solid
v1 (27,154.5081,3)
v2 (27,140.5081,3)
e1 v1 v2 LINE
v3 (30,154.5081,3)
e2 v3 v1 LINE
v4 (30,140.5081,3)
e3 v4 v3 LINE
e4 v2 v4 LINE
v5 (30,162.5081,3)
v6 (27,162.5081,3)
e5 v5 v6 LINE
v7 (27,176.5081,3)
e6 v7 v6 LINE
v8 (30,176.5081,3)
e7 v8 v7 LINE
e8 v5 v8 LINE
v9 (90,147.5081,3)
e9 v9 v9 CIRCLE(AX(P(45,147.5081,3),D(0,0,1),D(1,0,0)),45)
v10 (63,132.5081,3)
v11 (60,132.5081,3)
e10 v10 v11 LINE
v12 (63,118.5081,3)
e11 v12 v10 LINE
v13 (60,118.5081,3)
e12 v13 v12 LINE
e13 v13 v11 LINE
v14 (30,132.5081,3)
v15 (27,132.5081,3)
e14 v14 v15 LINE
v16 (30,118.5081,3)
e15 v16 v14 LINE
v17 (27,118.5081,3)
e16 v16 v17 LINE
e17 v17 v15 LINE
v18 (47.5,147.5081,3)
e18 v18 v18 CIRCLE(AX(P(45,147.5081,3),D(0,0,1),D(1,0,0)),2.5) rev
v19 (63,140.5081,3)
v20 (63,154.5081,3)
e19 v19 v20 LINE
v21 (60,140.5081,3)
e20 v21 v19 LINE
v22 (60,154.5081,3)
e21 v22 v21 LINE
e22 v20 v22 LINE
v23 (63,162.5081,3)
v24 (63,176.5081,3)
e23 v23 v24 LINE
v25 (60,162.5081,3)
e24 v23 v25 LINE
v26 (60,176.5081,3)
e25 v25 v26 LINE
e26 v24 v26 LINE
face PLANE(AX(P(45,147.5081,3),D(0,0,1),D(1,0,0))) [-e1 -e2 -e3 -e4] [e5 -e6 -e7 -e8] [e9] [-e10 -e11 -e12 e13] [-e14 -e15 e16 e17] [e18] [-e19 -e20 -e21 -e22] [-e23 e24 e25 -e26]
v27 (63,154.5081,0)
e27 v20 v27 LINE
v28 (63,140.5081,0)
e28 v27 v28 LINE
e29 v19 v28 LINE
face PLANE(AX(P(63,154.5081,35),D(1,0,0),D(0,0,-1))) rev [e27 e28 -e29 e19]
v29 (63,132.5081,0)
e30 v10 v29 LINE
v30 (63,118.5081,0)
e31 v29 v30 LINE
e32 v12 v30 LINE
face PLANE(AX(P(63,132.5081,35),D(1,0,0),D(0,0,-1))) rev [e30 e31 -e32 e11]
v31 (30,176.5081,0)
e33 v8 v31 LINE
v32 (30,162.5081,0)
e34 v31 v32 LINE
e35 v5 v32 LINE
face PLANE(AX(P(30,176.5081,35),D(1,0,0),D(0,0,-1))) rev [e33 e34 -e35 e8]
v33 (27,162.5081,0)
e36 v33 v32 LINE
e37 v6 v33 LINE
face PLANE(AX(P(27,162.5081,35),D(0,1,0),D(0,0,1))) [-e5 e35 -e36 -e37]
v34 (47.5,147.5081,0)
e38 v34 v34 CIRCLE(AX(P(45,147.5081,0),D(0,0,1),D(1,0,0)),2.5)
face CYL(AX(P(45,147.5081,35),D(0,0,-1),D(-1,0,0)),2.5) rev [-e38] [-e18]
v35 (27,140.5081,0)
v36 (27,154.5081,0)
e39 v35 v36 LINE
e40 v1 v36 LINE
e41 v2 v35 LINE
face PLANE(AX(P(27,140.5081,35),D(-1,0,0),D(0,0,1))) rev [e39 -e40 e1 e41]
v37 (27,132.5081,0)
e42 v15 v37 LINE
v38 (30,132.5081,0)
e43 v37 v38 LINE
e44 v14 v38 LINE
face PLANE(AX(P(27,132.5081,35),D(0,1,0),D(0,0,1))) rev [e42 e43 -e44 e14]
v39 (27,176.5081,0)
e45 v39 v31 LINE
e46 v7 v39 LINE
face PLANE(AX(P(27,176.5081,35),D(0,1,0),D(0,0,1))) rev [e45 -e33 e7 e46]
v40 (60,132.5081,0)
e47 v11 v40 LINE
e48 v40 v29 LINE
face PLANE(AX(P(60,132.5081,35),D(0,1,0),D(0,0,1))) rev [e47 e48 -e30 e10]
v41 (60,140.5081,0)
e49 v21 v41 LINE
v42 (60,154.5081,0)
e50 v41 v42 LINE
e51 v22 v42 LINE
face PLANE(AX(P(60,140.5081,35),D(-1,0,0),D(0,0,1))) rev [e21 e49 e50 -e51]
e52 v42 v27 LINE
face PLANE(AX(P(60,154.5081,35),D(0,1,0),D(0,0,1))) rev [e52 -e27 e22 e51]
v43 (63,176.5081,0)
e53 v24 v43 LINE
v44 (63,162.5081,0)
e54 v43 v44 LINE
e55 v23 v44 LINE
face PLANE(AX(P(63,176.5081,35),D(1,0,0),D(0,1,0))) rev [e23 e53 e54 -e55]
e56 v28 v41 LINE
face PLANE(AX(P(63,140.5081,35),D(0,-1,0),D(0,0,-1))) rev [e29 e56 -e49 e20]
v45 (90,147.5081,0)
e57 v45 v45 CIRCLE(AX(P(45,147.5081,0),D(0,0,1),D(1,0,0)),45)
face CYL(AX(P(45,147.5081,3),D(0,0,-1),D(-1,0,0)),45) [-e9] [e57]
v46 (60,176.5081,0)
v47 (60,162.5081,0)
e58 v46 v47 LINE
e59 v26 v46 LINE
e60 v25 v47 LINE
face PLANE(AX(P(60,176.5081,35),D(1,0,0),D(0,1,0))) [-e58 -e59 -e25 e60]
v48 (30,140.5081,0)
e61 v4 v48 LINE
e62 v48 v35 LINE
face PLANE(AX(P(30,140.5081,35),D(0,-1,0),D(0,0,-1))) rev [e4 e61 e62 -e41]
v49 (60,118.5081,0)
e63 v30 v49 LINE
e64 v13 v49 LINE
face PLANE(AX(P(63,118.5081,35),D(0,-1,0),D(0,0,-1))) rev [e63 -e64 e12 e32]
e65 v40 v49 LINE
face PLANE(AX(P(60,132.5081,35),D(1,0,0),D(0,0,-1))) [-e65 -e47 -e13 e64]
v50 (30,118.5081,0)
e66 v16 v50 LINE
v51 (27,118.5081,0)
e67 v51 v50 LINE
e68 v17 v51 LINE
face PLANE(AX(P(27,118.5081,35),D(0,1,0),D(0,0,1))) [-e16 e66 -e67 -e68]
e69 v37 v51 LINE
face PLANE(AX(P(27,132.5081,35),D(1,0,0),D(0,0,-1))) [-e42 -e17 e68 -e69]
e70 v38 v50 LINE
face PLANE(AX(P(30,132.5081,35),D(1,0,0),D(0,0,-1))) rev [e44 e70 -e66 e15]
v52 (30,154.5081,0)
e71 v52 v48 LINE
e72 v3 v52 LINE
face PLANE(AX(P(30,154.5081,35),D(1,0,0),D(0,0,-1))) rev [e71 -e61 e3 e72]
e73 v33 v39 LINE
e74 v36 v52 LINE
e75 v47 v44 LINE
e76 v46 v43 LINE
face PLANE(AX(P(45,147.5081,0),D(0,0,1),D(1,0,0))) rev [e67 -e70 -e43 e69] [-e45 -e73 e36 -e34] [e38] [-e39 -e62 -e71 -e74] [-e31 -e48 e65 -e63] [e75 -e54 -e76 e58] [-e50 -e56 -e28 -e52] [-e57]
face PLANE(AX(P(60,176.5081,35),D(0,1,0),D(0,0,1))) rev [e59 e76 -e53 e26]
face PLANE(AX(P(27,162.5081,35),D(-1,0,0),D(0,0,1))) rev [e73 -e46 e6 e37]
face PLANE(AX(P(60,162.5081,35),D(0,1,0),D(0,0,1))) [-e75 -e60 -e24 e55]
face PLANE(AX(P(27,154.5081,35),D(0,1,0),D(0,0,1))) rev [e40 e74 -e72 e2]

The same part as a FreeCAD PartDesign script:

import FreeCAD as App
import Part
import Sketcher

V = App.Vector


def add_polygon(sketch, points):
    """Adds a closed chain of lines whose ends are joined by coincident constraints."""
    first, n = sketch.GeometryCount, len(points)
    for a, b in zip(points, points[1:] + points[:1]):
        sketch.addGeometry(Part.LineSegment(App.Vector(*a, 0), App.Vector(*b, 0)), False)
    for i in range(n):
        sketch.addConstraint(Sketcher.Constraint("Coincident", first + i, 2, first + (i + 1) % n, 1))

doc = App.newDocument("Part")
body = doc.addObject("PartDesign::Body", "Body")

# Sketch on XY plane
sketch1 = doc.addObject("Sketcher::SketchObject", "Sketch")
body.addObject(sketch1)
sketch1.AttachmentSupport = (doc.XY_Plane, [""])
sketch1.MapMode = "FlatFace"
sketch1.addGeometry(Part.Circle(V(45, 148, 0), V(0, 0, 1), 45), False)
sketch1.addConstraint([
    Sketcher.Constraint("Diameter", 0, 90.0),
    Sketcher.Constraint("DistanceX", -1, 1, 0, 3, 45.0),
    Sketcher.Constraint("DistanceY", -1, 1, 0, 3, 147.5081),
])
pad1 = doc.addObject("PartDesign::Pad", "Pad")
body.addObject(pad1)
pad1.Profile = sketch1
pad1.Length = 3

# Sketch on XY plane
sketch2 = doc.addObject("Sketcher::SketchObject", "Sketch001")
body.addObject(sketch2)
sketch2.AttachmentSupport = (doc.XY_Plane, [""])
sketch2.MapMode = "FlatFace"
sketch2.addGeometry(Part.Circle(V(45, 147.5, 0), V(0, 0, 1), 2.5), False)  # 0
add_polygon(sketch2, [(60, 176.5), (60, 162.5), (63, 162.5), (63, 176.5)])  # lines 1-4
add_polygon(sketch2, [(60, 154.5), (60, 140.5), (63, 140.5), (63, 154.5)])  # lines 5-8
add_polygon(sketch2, [(60, 132.5), (60, 118.5), (63, 118.5), (63, 132.5)])  # lines 9-12
add_polygon(sketch2, [(27, 176.5), (27, 162.5), (30, 162.5), (30, 176.5)])  # lines 13-16
add_polygon(sketch2, [(27, 132.5), (27, 118.5), (30, 118.5), (30, 132.5)])  # lines 17-20
add_polygon(sketch2, [(27, 154.5), (27, 140.5), (30, 140.5), (30, 154.5)])  # lines 21-24
sketch2.addConstraint([
    Sketcher.Constraint("Vertical", 1),
    Sketcher.Constraint("Horizontal", 2),
    Sketcher.Constraint("Vertical", 3),
    Sketcher.Constraint("Horizontal", 4),
    Sketcher.Constraint("Vertical", 5),
    Sketcher.Constraint("Horizontal", 6),
    Sketcher.Constraint("Vertical", 7),
    Sketcher.Constraint("Horizontal", 8),
    Sketcher.Constraint("Vertical", 9),
    Sketcher.Constraint("Horizontal", 10),
    Sketcher.Constraint("Vertical", 11),
    Sketcher.Constraint("Horizontal", 12),
    Sketcher.Constraint("Vertical", 13),
    Sketcher.Constraint("Horizontal", 14),
    Sketcher.Constraint("Vertical", 15),
    Sketcher.Constraint("Horizontal", 16),
    Sketcher.Constraint("Vertical", 17),
    Sketcher.Constraint("Horizontal", 18),
    Sketcher.Constraint("Vertical", 19),
    Sketcher.Constraint("Horizontal", 20),
    Sketcher.Constraint("Vertical", 21),
    Sketcher.Constraint("Horizontal", 22),
    Sketcher.Constraint("Vertical", 23),
    Sketcher.Constraint("Horizontal", 24),
    Sketcher.Constraint("Horizontal", 2, 2, 13, 2),
    Sketcher.Constraint("Horizontal", 4, 2, 15, 2),
    Sketcher.Constraint("Horizontal", 10, 2, 17, 2),
    Sketcher.Constraint("Horizontal", 12, 2, 19, 2),
    Sketcher.Constraint("Horizontal", 6, 2, 21, 2),
    Sketcher.Constraint("Horizontal", 8, 2, 23, 2),
    Sketcher.Constraint("Vertical", 4, 2, 5, 2),
    Sketcher.Constraint("Vertical", 3, 2, 6, 2),
    Sketcher.Constraint("Vertical", 8, 2, 9, 2),
    Sketcher.Constraint("Vertical", 7, 2, 10, 2),
    Sketcher.Constraint("Vertical", 16, 2, 17, 2),
    Sketcher.Constraint("Vertical", 15, 2, 18, 2),
    Sketcher.Constraint("Vertical", 20, 2, 21, 2),
    Sketcher.Constraint("Vertical", 19, 2, 22, 2),
    Sketcher.Constraint("Equal", 12, 14),
    Sketcher.Constraint("Equal", 3, 5),
    Sketcher.Constraint("Equal", 7, 9),
    Sketcher.Constraint("Diameter", 0, 5.0),
    Sketcher.Constraint("DistanceX", 2, 1, 2, 2, 3.0),
    Sketcher.Constraint("DistanceY", 1, 2, 1, 1, 14.0),
    Sketcher.Constraint("DistanceX", -1, 1, 0, 3, 45.0),
    Sketcher.Constraint("DistanceX", -1, 1, 1, 2, 60.0),
    Sketcher.Constraint("DistanceX", -1, 1, 13, 2, 27.0),
    Sketcher.Constraint("DistanceY", 0, 3, 1, 2, 15.0),
    Sketcher.Constraint("DistanceY", 5, 2, 0, 3, 7.0),
    Sketcher.Constraint("DistanceY", 9, 2, 5, 2, 22.0),
    Sketcher.Constraint("DistanceY", -1, 1, 0, 3, 147.5081),
])
pocket1 = doc.addObject("PartDesign::Pocket", "Pocket")
body.addObject(pocket1)
pocket1.Profile = sketch2
pocket1.Length = 35
pocket1.Reversed = True

doc.recompute()
